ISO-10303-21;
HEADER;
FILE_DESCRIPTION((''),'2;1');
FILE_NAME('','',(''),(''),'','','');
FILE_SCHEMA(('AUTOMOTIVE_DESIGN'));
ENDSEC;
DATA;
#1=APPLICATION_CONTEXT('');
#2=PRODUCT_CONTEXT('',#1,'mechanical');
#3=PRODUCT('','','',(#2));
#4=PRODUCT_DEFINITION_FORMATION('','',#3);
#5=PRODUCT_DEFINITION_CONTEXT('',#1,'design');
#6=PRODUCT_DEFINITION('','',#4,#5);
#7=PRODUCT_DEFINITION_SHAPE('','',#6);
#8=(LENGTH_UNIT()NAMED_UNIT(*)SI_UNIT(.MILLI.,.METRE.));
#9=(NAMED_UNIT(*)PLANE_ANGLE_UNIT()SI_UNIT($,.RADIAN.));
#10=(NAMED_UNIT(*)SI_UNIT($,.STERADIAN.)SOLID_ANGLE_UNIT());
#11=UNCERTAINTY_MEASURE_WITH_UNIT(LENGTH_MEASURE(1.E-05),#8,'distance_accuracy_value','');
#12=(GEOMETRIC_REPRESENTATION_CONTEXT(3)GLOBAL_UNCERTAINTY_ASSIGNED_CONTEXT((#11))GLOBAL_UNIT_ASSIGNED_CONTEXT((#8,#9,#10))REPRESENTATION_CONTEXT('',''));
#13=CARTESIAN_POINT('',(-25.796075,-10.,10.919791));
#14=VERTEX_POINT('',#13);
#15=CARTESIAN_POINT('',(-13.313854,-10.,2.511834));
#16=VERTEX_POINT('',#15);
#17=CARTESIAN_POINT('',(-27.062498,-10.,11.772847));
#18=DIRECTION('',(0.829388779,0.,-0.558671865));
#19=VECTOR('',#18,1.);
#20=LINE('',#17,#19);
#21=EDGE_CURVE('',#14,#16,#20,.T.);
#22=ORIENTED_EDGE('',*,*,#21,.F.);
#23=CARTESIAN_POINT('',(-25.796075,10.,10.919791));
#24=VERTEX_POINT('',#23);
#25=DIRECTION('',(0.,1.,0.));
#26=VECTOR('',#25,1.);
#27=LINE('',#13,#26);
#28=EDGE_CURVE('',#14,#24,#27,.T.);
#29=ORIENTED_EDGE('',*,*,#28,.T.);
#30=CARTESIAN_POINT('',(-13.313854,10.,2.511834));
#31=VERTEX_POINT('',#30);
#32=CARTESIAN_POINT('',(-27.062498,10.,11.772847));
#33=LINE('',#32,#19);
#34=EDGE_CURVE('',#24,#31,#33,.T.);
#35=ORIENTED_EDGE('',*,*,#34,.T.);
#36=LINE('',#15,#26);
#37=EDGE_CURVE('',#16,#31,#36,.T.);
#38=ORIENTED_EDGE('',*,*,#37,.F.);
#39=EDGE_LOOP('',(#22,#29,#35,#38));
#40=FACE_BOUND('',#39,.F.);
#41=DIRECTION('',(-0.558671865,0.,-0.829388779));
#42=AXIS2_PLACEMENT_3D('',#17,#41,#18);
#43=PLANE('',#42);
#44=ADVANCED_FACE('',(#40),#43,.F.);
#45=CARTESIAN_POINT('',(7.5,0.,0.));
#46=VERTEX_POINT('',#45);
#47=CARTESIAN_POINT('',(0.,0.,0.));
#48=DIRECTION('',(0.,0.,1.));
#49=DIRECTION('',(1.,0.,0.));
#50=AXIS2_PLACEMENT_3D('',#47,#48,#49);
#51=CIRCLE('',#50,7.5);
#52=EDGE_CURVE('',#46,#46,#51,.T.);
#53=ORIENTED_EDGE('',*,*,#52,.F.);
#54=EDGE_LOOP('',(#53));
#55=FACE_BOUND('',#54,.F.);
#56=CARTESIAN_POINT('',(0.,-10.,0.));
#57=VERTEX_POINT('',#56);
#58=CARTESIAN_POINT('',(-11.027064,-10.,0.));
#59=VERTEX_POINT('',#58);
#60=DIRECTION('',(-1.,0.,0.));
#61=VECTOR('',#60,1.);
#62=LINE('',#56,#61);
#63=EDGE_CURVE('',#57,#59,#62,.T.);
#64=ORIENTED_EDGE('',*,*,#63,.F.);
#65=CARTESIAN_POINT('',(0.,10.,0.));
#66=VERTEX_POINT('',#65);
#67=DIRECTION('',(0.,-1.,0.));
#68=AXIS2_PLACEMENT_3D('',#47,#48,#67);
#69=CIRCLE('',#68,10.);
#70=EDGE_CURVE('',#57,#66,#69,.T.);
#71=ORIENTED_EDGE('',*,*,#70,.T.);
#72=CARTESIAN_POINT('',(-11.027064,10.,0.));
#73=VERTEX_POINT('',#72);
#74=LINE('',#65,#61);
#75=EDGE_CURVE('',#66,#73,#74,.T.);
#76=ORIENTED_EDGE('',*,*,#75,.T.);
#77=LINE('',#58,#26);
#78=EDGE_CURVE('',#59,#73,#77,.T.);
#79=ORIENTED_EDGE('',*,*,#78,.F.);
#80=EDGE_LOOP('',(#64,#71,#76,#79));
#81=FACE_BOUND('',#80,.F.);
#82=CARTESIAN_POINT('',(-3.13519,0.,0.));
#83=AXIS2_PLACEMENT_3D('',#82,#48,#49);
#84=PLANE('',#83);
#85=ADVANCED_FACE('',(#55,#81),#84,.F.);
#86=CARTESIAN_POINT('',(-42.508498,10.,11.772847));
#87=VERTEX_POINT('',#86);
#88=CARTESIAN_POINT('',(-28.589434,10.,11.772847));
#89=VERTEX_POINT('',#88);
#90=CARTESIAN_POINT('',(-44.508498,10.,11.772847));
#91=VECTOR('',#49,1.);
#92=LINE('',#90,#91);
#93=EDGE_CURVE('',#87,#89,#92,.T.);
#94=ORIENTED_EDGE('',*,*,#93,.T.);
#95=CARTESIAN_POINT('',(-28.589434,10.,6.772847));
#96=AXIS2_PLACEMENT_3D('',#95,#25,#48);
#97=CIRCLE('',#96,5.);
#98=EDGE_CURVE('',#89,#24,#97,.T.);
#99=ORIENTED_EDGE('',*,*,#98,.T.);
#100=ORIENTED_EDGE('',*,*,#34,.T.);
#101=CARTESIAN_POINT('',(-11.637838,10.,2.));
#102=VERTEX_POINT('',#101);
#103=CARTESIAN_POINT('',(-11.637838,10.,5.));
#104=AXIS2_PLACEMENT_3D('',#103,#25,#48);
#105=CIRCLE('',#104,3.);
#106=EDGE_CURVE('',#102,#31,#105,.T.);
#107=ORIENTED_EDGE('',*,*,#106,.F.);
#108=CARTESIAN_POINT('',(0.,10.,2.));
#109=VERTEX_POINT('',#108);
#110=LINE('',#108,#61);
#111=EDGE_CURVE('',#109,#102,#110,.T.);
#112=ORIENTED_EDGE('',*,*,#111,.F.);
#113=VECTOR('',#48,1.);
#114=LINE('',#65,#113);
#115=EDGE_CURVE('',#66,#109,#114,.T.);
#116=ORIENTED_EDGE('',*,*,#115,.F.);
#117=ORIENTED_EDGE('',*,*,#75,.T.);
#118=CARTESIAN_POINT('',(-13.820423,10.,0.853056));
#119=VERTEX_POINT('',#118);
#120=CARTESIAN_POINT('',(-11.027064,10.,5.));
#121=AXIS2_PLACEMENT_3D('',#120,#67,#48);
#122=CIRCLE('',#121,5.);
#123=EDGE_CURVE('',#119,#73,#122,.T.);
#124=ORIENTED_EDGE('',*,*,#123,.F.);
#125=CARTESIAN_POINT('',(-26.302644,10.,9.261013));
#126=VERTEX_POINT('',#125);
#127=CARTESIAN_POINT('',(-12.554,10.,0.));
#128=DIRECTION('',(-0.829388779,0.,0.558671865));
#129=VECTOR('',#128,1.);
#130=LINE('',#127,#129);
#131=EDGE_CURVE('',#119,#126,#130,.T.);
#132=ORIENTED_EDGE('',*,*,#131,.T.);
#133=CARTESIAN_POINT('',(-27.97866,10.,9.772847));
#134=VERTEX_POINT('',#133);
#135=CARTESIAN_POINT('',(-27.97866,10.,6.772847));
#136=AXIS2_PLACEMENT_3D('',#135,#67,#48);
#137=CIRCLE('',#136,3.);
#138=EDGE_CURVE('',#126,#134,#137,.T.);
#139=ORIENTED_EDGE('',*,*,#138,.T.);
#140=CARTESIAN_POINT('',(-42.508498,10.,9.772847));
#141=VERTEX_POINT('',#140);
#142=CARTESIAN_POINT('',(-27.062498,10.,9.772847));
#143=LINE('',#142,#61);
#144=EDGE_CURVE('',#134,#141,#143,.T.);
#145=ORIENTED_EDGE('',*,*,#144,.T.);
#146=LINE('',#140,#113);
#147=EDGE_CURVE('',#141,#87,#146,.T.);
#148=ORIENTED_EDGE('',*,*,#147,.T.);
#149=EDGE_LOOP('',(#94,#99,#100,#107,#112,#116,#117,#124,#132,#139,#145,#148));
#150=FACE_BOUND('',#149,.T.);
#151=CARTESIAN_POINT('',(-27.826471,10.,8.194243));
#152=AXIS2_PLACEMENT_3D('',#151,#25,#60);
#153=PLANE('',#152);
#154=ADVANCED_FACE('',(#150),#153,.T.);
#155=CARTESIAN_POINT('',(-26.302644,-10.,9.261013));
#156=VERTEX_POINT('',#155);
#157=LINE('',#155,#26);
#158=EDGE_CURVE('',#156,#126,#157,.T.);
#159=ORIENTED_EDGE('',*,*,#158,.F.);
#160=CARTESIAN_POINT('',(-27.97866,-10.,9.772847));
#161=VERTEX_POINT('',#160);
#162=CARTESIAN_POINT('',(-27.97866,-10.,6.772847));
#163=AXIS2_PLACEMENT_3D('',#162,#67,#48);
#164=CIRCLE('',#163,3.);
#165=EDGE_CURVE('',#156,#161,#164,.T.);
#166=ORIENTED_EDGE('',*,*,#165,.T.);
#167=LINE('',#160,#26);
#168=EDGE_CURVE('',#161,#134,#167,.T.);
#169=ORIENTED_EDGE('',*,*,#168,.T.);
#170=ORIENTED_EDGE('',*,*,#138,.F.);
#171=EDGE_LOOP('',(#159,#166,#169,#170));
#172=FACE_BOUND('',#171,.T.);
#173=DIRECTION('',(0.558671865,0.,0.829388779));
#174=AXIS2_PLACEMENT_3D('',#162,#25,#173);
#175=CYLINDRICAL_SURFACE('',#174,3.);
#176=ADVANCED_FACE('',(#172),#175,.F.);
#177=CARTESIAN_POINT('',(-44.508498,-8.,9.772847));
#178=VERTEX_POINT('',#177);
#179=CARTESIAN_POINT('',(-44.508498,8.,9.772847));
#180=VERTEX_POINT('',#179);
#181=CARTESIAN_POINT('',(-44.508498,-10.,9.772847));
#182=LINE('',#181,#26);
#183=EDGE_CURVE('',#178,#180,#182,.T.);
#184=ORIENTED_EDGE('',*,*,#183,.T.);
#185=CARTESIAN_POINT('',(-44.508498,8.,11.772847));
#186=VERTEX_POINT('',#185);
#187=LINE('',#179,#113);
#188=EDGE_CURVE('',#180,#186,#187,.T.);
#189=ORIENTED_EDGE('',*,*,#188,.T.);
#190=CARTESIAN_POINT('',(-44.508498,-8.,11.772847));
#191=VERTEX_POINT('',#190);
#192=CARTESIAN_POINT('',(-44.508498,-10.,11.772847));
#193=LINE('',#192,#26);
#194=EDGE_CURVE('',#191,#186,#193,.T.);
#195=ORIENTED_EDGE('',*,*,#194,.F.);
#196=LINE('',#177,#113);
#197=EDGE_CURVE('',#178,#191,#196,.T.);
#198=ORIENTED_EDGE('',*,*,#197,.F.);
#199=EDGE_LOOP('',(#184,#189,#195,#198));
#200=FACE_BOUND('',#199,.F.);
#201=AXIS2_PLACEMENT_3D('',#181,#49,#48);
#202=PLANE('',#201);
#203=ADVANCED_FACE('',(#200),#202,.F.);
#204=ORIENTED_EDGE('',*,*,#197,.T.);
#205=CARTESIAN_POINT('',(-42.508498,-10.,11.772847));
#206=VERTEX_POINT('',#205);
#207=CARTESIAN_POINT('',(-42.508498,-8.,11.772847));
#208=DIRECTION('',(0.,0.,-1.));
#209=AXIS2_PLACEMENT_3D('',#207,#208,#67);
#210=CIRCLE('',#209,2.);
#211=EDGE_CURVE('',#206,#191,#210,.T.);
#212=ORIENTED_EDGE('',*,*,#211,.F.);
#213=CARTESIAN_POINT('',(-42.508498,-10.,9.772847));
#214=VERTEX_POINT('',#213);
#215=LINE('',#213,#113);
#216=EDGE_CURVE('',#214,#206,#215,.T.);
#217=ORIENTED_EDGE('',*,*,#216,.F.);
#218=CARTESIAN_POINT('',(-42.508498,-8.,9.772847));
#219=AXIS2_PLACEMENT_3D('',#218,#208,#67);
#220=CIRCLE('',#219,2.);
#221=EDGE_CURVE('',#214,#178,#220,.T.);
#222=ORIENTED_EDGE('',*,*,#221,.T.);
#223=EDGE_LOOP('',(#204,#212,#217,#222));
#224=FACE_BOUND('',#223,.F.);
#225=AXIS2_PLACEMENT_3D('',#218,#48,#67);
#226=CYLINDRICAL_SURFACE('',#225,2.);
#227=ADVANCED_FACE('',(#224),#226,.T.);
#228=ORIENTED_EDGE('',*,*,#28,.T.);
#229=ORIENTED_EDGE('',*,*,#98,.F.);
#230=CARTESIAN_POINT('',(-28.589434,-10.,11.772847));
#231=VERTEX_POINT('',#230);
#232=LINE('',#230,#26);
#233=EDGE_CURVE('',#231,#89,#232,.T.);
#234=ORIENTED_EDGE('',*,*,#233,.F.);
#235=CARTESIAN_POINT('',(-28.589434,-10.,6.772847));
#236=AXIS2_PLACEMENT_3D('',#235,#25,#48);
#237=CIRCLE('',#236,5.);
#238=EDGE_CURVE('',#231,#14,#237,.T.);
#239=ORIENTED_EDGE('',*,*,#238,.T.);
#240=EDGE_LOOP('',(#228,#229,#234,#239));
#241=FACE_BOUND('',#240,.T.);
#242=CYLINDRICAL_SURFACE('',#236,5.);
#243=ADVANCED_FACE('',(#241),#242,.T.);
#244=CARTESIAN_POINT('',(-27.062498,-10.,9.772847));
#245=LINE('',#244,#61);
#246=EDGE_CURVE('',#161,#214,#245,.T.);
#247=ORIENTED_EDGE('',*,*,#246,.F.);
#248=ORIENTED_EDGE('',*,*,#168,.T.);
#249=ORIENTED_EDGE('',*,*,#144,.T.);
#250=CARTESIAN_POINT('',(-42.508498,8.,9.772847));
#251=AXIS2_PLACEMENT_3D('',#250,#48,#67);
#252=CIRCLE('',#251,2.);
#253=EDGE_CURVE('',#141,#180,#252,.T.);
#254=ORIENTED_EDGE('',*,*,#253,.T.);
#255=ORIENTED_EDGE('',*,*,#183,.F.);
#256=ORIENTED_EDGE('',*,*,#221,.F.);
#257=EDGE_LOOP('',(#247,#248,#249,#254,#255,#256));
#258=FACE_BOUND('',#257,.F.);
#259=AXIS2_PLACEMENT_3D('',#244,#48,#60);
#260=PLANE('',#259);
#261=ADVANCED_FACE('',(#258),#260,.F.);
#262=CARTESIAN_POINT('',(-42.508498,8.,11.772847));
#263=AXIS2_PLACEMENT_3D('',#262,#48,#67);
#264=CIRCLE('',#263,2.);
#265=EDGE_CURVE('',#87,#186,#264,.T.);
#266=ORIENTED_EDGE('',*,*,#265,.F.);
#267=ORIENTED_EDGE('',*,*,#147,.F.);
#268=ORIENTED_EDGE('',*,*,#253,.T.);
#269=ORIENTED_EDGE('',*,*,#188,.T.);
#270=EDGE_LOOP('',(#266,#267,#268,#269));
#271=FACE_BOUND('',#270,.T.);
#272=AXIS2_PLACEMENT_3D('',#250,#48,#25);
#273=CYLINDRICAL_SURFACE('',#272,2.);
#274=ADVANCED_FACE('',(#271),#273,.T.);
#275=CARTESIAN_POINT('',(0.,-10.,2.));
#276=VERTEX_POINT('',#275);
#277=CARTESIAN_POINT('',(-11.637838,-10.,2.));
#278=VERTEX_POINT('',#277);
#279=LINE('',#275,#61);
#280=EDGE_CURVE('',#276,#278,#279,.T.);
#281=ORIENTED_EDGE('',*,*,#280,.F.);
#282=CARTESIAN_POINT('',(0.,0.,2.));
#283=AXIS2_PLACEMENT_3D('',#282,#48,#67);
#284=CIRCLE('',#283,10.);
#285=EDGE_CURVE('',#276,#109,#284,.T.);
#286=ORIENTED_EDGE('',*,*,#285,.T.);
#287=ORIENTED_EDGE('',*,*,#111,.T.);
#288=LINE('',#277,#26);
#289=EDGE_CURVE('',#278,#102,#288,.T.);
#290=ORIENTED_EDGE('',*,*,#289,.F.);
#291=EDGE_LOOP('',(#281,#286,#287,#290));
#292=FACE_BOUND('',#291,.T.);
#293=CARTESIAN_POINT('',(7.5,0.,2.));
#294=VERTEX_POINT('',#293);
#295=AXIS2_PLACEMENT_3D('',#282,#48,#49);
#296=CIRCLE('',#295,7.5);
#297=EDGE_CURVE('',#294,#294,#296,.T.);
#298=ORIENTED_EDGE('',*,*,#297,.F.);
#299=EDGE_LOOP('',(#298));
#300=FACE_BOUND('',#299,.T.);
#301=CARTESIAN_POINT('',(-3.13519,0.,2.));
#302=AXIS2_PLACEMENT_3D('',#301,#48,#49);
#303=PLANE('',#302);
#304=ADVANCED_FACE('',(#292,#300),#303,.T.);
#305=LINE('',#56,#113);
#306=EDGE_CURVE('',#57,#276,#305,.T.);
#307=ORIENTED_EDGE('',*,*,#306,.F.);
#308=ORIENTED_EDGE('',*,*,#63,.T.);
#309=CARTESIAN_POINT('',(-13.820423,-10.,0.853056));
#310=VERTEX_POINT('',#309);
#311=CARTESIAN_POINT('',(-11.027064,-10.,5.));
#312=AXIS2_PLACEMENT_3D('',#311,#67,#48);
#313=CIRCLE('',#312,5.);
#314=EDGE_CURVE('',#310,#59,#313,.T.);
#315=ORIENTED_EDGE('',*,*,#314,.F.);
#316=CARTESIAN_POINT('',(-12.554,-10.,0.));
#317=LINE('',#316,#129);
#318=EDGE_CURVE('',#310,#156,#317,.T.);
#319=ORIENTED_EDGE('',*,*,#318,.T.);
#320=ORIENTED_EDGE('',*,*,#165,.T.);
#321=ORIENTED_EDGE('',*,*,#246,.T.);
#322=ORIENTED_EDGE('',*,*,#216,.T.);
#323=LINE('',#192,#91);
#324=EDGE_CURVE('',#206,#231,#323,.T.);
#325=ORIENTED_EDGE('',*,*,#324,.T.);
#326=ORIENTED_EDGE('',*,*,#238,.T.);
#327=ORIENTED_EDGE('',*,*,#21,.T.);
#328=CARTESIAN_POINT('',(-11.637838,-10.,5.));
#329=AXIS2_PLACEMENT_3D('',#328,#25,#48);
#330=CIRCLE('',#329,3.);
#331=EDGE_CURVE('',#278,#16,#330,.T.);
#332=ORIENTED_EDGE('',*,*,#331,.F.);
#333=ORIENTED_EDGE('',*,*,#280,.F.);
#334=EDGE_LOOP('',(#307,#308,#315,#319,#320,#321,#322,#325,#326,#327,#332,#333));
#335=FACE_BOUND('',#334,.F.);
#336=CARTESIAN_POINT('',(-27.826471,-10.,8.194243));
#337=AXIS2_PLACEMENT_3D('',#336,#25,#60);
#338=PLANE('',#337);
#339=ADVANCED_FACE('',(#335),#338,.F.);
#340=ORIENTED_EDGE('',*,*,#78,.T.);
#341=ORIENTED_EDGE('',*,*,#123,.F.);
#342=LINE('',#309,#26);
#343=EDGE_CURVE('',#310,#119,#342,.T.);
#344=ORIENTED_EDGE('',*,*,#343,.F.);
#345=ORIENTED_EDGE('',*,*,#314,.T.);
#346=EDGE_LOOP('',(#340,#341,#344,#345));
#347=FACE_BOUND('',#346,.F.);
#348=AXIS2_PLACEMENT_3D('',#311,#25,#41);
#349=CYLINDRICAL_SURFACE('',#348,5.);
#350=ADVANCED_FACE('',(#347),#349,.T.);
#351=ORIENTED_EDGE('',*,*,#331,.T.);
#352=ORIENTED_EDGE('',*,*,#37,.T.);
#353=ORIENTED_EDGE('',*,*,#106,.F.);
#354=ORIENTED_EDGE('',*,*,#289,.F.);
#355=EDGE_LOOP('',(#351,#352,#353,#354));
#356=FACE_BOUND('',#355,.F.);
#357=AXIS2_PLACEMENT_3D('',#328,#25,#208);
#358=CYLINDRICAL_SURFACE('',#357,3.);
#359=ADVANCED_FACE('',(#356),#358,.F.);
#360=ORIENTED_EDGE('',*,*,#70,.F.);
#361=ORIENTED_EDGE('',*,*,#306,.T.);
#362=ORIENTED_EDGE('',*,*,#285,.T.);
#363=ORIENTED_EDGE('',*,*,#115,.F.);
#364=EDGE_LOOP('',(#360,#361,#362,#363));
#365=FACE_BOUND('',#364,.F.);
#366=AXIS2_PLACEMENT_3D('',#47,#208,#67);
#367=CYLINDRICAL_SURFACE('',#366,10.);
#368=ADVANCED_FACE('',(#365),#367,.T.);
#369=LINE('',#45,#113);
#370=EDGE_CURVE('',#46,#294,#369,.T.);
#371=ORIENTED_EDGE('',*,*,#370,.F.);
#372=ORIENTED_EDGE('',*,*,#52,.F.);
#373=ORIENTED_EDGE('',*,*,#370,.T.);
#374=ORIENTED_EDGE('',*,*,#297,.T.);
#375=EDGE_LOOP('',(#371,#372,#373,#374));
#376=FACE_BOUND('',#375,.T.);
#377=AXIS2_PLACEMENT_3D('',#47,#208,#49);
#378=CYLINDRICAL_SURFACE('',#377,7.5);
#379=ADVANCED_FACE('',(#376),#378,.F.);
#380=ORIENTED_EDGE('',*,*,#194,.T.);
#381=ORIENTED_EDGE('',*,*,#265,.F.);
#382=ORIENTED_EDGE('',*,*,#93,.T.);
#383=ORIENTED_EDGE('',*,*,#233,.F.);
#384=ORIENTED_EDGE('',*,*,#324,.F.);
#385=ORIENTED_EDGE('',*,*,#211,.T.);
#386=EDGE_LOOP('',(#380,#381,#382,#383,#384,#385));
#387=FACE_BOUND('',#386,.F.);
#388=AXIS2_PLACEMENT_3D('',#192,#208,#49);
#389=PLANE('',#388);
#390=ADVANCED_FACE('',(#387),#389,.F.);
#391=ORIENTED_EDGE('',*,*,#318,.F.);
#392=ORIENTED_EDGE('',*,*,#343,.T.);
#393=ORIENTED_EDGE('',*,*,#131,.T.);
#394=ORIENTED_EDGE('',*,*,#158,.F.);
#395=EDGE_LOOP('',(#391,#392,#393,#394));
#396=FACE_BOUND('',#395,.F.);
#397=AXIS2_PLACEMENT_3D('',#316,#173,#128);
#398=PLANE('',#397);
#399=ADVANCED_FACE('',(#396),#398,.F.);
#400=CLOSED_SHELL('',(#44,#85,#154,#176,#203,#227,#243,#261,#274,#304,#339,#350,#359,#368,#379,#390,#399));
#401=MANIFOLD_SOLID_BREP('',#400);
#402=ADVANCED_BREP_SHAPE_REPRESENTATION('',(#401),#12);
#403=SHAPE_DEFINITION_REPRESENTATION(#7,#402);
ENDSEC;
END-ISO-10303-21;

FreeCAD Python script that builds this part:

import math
import FreeCAD as App
import Part
import Sketcher


def edges_at(feature, points):
    """Names of the edges that pass closest to the given points."""
    edges = feature.Shape.Edges
    near = lambda p: min(range(len(edges)), key=lambda i: edges[i].distToShape(Part.Vertex(*p))[0])
    return sorted({f"Edge{near(p) + 1}" for p in points})

doc = App.newDocument("Part")
body = doc.addObject("PartDesign::Body", "Body")

# Sketch on XY plane
sketch1 = body.newObject("Sketcher::SketchObject", "Sketch")
sketch1.AttachmentSupport = (doc.getObject("XY_Plane"), [""])
sketch1.MapMode = "FlatFace"
sketch1.addGeometry(Part.ArcOfCircle(Part.Circle(App.Vector(0, 0, 0), App.Vector(0, 0, 1), 10), math.radians(-90), math.radians(90)), False)
sketch1.addGeometry(Part.LineSegment(App.Vector(0, 10, 0), App.Vector(-13, 10, 0)), False)
sketch1.addGeometry(Part.LineSegment(App.Vector(-13, 10, 0), App.Vector(-13, -10, 0)), False)
sketch1.addGeometry(Part.LineSegment(App.Vector(-13, -10, 0), App.Vector(0, -10, 0)), False)
sketch1.addGeometry(Part.Circle(App.Vector(0, 0, 0), App.Vector(0, 0, 1), 8), False)
sketch1.addConstraint(Sketcher.Constraint("Tangent", 0, 2, 1, 1))
sketch1.addConstraint(Sketcher.Constraint("Coincident", 1, 2, 2, 1))
sketch1.addConstraint(Sketcher.Constraint("Coincident", 2, 2, 3, 1))
sketch1.addConstraint(Sketcher.Constraint("Tangent", 3, 2, 0, 1))
sketch1.addConstraint(Sketcher.Constraint("Horizontal", 1))
sketch1.addConstraint(Sketcher.Constraint("Vertical", 2))
sketch1.addConstraint(Sketcher.Constraint("Horizontal", 3))
sketch1.addConstraint(Sketcher.Constraint("Coincident", 0, 3, -1, 1))
sketch1.addConstraint(Sketcher.Constraint("Coincident", 4, 3, -1, 1))
sketch1.addConstraint(Sketcher.Constraint("Diameter", 4, 15.0))
sketch1.addConstraint(Sketcher.Constraint("Radius", 0, 10.0))
sketch1.addConstraint(Sketcher.Constraint("DistanceX", 1, 2, 1, 1, 12.554))
pad1 = body.newObject("PartDesign::Pad", "Pad")
pad1.Profile = sketch1
pad1.Length = 2

# Sketch on XZ plane
sketch2 = body.newObject("Sketcher::SketchObject", "Sketch001")
sketch2.AttachmentSupport = (doc.getObject("XZ_Plane"), [""])
sketch2.MapMode = "FlatFace"
sketch2.AttachmentOffset = App.Placement(App.Vector(0, 0, 10), App.Rotation())
sketch2.addGeometry(Part.LineSegment(App.Vector(-27.1, 9.8, 0), App.Vector(-12.6, 0, 0)), False)
sketch2.addGeometry(Part.LineSegment(App.Vector(-12.6, 0, 0), App.Vector(-12.6, 2, 0)), False)
sketch2.addGeometry(Part.LineSegment(App.Vector(-12.6, 2, 0), App.Vector(-27.1, 11.8, 0)), False)
sketch2.addGeometry(Part.LineSegment(App.Vector(-27.1, 11.8, 0), App.Vector(-44.5, 11.8, 0)), False)
sketch2.addGeometry(Part.LineSegment(App.Vector(-44.5, 11.8, 0), App.Vector(-44.5, 9.8, 0)), False)
sketch2.addGeometry(Part.LineSegment(App.Vector(-44.5, 9.8, 0), App.Vector(-27.1, 9.8, 0)), False)
sketch2.addConstraint(Sketcher.Constraint("Coincident", 0, 2, 1, 1))
sketch2.addConstraint(Sketcher.Constraint("Coincident", 1, 2, 2, 1))
sketch2.addConstraint(Sketcher.Constraint("Coincident", 2, 2, 3, 1))
sketch2.addConstraint(Sketcher.Constraint("Coincident", 3, 2, 4, 1))
sketch2.addConstraint(Sketcher.Constraint("Coincident", 4, 2, 5, 1))
sketch2.addConstraint(Sketcher.Constraint("Coincident", 5, 2, 0, 1))
sketch2.addConstraint(Sketcher.Constraint("Vertical", 1))
sketch2.addConstraint(Sketcher.Constraint("Horizontal", 3))
sketch2.addConstraint(Sketcher.Constraint("Vertical", 4))
sketch2.addConstraint(Sketcher.Constraint("Horizontal", 5))
sketch2.addConstraint(Sketcher.Constraint("PointOnObject", 0, 2, -1))
sketch2.addConstraint(Sketcher.Constraint("Parallel", 0, 2))
sketch2.addConstraint(Sketcher.Constraint("Vertical", 2, 2, 5, 2))
sketch2.addConstraint(Sketcher.Constraint("DistanceY", 1, 1, 1, 2, 2.0))
sketch2.addConstraint(Sketcher.Constraint("DistanceX", 3, 2, 3, 1, 17.446))
sketch2.addConstraint(Sketcher.Constraint("Distance", 0, 17.493))
sketch2.addConstraint(Sketcher.Constraint("DistanceX", 0, 2, -1, 1, 12.554))
sketch2.addConstraint(Sketcher.Constraint("DistanceX", 2, 2, -1, 1, 27.062498))
pad2 = body.newObject("PartDesign::Pad", "Pad001")
pad2.Profile = sketch2
pad2.Length = 20
pad2.Reversed = True
doc.recompute()

fillet = body.newObject("PartDesign::Fillet", "Fillet")
fillet.Base = (pad2, edges_at(pad2, [(-44.508, -10, 10.773), (-44.508, 10, 10.773)]))
fillet.Radius = 2
doc.recompute()

fillet2 = body.newObject("PartDesign::Fillet", "Fillet001")
fillet2.Base = (fillet, edges_at(fillet, [(-27.062, 0, 11.773), (-12.554, 0, 0)]))
fillet2.Radius = 5
doc.recompute()

fillet3 = body.newObject("PartDesign::Fillet", "Fillet002")
fillet3.Base = (fillet2, edges_at(fillet2, [(-27.062, 0, 9.773), (-12.554, 0, 2)]))
fillet3.Radius = 3

doc.recompute()
